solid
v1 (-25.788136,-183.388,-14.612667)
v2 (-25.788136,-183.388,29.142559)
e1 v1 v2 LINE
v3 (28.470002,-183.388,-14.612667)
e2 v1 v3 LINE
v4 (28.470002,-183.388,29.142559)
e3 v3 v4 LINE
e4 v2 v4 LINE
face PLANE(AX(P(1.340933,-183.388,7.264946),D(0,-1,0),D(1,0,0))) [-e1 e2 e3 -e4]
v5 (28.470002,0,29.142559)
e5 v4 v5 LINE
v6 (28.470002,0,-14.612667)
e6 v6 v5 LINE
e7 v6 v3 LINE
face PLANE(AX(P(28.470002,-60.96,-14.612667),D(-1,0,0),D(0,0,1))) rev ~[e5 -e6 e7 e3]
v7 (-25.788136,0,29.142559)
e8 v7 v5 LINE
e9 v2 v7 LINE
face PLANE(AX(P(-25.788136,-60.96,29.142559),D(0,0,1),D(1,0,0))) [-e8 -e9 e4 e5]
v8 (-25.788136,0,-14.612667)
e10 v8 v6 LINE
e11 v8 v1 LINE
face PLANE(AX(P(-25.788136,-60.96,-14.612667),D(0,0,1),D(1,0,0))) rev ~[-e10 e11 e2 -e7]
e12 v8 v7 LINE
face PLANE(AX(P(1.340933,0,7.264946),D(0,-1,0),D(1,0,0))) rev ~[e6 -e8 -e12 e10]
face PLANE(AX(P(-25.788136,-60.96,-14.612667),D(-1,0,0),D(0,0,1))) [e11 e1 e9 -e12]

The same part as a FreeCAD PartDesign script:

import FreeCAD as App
import Part
import Sketcher
from FreeCAD import Vector
Q = App.Units.Quantity

doc = App.newDocument("Part")
body = doc.addObject("PartDesign::Body", "Body")

sketch1 = body.newObject("Sketcher::SketchObject", "Sketch")
sketch1.AttachmentSupport = (doc.getObject("XZ_Plane"), [""])
sketch1.MapMode = "FlatFace"
sketch1.addGeometry(Part.LineSegment(Vector(-26, 29, 0), Vector(-26, -15, 0)), False)
sketch1.addGeometry(Part.LineSegment(Vector(-26, -15, 0), Vector(28, -15, 0)), False)
sketch1.addGeometry(Part.LineSegment(Vector(28, -15, 0), Vector(28, 29, 0)), False)
sketch1.addGeometry(Part.LineSegment(Vector(28, 29, 0), Vector(-26, 29, 0)), False)
sketch1.addConstraint(Sketcher.Constraint("Coincident", 0, 2, 1, 1))
sketch1.addConstraint(Sketcher.Constraint("Coincident", 1, 2, 2, 1))
sketch1.addConstraint(Sketcher.Constraint("Coincident", 2, 2, 3, 1))
sketch1.addConstraint(Sketcher.Constraint("Coincident", 3, 2, 0, 1))
sketch1.addConstraint(Sketcher.Constraint("Vertical", 0))
sketch1.addConstraint(Sketcher.Constraint("Horizontal", 1))
sketch1.addConstraint(Sketcher.Constraint("Vertical", 2))
sketch1.addConstraint(Sketcher.Constraint("Horizontal", 3))
sketch1.addConstraint(Sketcher.Constraint("DistanceX", 1, 1, 1, 2, 54.258138))
sketch1.addConstraint(Sketcher.Constraint("DistanceY", 0, 2, 0, 1, 43.755226))
sketch1.addConstraint(Sketcher.Constraint("DistanceY", -1, 1, 2, 2, 29.142559))
sketch1.addConstraint(Sketcher.Constraint("DistanceX", 0, 2, -1, 1, 25.788136))
pad1 = body.newObject("PartDesign::Pad", "Pad")
pad1.Profile = sketch1
pad1.Length = Q("2.4 in")

sketch2 = body.newObject("Sketcher::SketchObject", "Sketch001")
sketch2.AttachmentSupport = (doc.getObject("XZ_Plane"), [""])
sketch2.MapMode = "FlatFace"
sketch2.AttachmentOffset = App.Placement(Vector(0, 0, 2.4 * 25.4), App.Rotation())
sketch2.addGeometry(Part.LineSegment(Vector(-26, 29, 0), Vector(-26, -15, 0)), False)
sketch2.addGeometry(Part.LineSegment(Vector(-26, -15, 0), Vector(28, -15, 0)), False)
sketch2.addGeometry(Part.LineSegment(Vector(28, -15, 0), Vector(28, 29, 0)), False)
sketch2.addGeometry(Part.LineSegment(Vector(28, 29, 0), Vector(-26, 29, 0)), False)
sketch2.addConstraint(Sketcher.Constraint("Coincident", 0, 2, 1, 1))
sketch2.addConstraint(Sketcher.Constraint("Coincident", 1, 2, 2, 1))
sketch2.addConstraint(Sketcher.Constraint("Coincident", 2, 2, 3, 1))
sketch2.addConstraint(Sketcher.Constraint("Coincident", 3, 2, 0, 1))
sketch2.addConstraint(Sketcher.Constraint("Vertical", 0))
sketch2.addConstraint(Sketcher.Constraint("Horizontal", 1))
sketch2.addConstraint(Sketcher.Constraint("Vertical", 2))
sketch2.addConstraint(Sketcher.Constraint("Horizontal", 3))
sketch2.addConstraint(Sketcher.Constraint("DistanceX", 1, 1, 1, 2, 54.258138))
sketch2.addConstraint(Sketcher.Constraint("DistanceY", 0, 2, 0, 1, 43.755226))
sketch2.addConstraint(Sketcher.Constraint("DistanceY", -1, 1, 2, 2, 29.142559))
sketch2.addConstraint(Sketcher.Constraint("DistanceX", 0, 2, -1, 1, 25.788136))
pad2 = body.newObject("PartDesign::Pad", "Pad001")
pad2.Profile = sketch2
pad2.Length = Q("1.59 in")
pad2.Reversed = True

sketch3 = body.newObject("Sketcher::SketchObject", "Sketch002")
sketch3.AttachmentSupport = (doc.getObject("XZ_Plane"), [""])
sketch3.MapMode = "FlatFace"
sketch3.AttachmentOffset = App.Placement(Vector(0, 0, 2.4 * 25.4), App.Rotation())
sketch3.addGeometry(Part.LineSegment(Vector(-26, 29, 0), Vector(-26, -15, 0)), False)
sketch3.addGeometry(Part.LineSegment(Vector(-26, -15, 0), Vector(28, -15, 0)), False)
sketch3.addGeometry(Part.LineSegment(Vector(28, -15, 0), Vector(28, 29, 0)), False)
sketch3.addGeometry(Part.LineSegment(Vector(28, 29, 0), Vector(-26, 29, 0)), False)
sketch3.addConstraint(Sketcher.Constraint("Coincident", 0, 2, 1, 1))
sketch3.addConstraint(Sketcher.Constraint("Coincident", 1, 2, 2, 1))
sketch3.addConstraint(Sketcher.Constraint("Coincident", 2, 2, 3, 1))
sketch3.addConstraint(Sketcher.Constraint("Coincident", 3, 2, 0, 1))
sketch3.addConstraint(Sketcher.Constraint("Vertical", 0))
sketch3.addConstraint(Sketcher.Constraint("Horizontal", 1))
sketch3.addConstraint(Sketcher.Constraint("Vertical", 2))
sketch3.addConstraint(Sketcher.Constraint("Horizontal", 3))
sketch3.addConstraint(Sketcher.Constraint("DistanceX", 1, 1, 1, 2, 54.258138))
sketch3.addConstraint(Sketcher.Constraint("DistanceY", 0, 2, 0, 1, 43.755226))
sketch3.addConstraint(Sketcher.Constraint("DistanceY", -1, 1, 2, 2, 29.142559))
sketch3.addConstraint(Sketcher.Constraint("DistanceX", 0, 2, -1, 1, 25.788136))
pad3 = body.newObject("PartDesign::Pad", "Pad002")
pad3.Profile = sketch3
pad3.Length = Q("4.82 in")

doc.recompute()
